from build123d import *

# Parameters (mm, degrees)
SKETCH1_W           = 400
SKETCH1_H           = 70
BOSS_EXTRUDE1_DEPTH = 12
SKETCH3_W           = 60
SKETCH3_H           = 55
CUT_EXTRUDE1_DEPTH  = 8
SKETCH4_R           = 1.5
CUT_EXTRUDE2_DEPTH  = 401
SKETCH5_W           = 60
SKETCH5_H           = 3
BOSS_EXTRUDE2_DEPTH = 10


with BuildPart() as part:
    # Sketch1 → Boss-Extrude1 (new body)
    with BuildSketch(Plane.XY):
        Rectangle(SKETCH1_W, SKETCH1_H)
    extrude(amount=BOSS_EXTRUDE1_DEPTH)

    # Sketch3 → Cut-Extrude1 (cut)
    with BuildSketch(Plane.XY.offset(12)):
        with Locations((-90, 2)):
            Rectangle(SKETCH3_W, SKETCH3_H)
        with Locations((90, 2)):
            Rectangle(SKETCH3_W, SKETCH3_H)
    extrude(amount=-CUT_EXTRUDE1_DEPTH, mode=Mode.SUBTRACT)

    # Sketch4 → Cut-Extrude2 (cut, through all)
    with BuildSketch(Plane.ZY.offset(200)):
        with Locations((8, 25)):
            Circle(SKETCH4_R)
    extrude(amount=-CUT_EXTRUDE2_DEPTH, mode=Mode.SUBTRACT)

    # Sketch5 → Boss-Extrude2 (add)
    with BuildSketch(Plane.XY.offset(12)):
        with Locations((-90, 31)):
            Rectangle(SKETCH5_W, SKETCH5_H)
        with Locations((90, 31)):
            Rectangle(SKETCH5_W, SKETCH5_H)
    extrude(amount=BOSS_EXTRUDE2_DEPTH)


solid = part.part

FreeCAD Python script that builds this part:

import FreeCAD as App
import Part
import Sketcher
from FreeCAD import Vector
Q = App.Units.Quantity

doc = App.newDocument("Part")
body = doc.addObject("PartDesign::Body", "Body")

# Sketch on XY plane
sketch1 = body.newObject("Sketcher::SketchObject", "Sketch")
sketch1.AttachmentSupport = (doc.getObject("XY_Plane"), [""])
sketch1.MapMode = "FlatFace"
sketch1.addGeometry([
    Part.LineSegment(Vector(-200, 35, 0), Vector(-200, -35, 0)),
    Part.LineSegment(Vector(-200, -35, 0), Vector(200, -35, 0)),
    Part.LineSegment(Vector(200, -35, 0), Vector(200, 35, 0)),
    Part.LineSegment(Vector(200, 35, 0), Vector(-200, 35, 0)),
], False)
sketch1.addConstraint([
    Sketcher.Constraint("Coincident", 0, 2, 1, 1),
    Sketcher.Constraint("Coincident", 1, 2, 2, 1),
    Sketcher.Constraint("Coincident", 2, 2, 3, 1),
    Sketcher.Constraint("Coincident", 3, 2, 0, 1),
    Sketcher.Constraint("Vertical", 0),
    Sketcher.Constraint("Horizontal", 1),
    Sketcher.Constraint("Vertical", 2),
    Sketcher.Constraint("Horizontal", 3),
    Sketcher.Constraint("Symmetric", 0, 2, 2, 2, -1, 1),
    Sketcher.Constraint("DistanceX", 1, 1, 1, 2, Q("400 mm")),
    Sketcher.Constraint("DistanceY", 0, 2, 0, 1, Q("70 mm")),
])
pad1 = body.newObject("PartDesign::Pad", "Pad")
pad1.Profile = sketch1
pad1.Length = 12

# Sketch on XY plane
sketch2 = body.newObject("Sketcher::SketchObject", "Sketch001")
sketch2.AttachmentSupport = (doc.getObject("XY_Plane"), [""])
sketch2.MapMode = "FlatFace"
sketch2.AttachmentOffset = App.Placement(Vector(0, 0, 12), App.Rotation())
sketch2.addGeometry([
    Part.LineSegment(Vector(-120, 30, 0), Vector(-120, -26, 0)),  # 0
    Part.LineSegment(Vector(-120, -26, 0), Vector(-60, -26, 0)),  # 1
    Part.LineSegment(Vector(-60, -26, 0), Vector(-60, 30, 0)),  # 2
    Part.LineSegment(Vector(-60, 30, 0), Vector(-120, 30, 0)),  # 3
    Part.LineSegment(Vector(60, 30, 0), Vector(60, -26, 0)),  # 4
    Part.LineSegment(Vector(60, -26, 0), Vector(120, -26, 0)),  # 5
    Part.LineSegment(Vector(120, -26, 0), Vector(120, 30, 0)),  # 6
    Part.LineSegment(Vector(120, 30, 0), Vector(60, 30, 0)),  # 7
], False)
sketch2.addConstraint([
    Sketcher.Constraint("Coincident", 0, 2, 1, 1),
    Sketcher.Constraint("Coincident", 1, 2, 2, 1),
    Sketcher.Constraint("Coincident", 2, 2, 3, 1),
    Sketcher.Constraint("Coincident", 3, 2, 0, 1),
    Sketcher.Constraint("Coincident", 4, 2, 5, 1),
    Sketcher.Constraint("Coincident", 5, 2, 6, 1),
    Sketcher.Constraint("Coincident", 6, 2, 7, 1),
    Sketcher.Constraint("Coincident", 7, 2, 4, 1),
    Sketcher.Constraint("Vertical", 0),
    Sketcher.Constraint("Horizontal", 1),
    Sketcher.Constraint("Vertical", 2),
    Sketcher.Constraint("Horizontal", 3),
    Sketcher.Constraint("Vertical", 4),
    Sketcher.Constraint("Horizontal", 5),
    Sketcher.Constraint("Vertical", 6),
    Sketcher.Constraint("Horizontal", 7),
    Sketcher.Constraint("Symmetric", 1, 2, 4, 2, -2),
    Sketcher.Constraint("Symmetric", 3, 2, 6, 2, -2),
    Sketcher.Constraint("DistanceX", 1, 1, 1, 2, Q("60 mm")),
    Sketcher.Constraint("DistanceY", 0, 2, 0, 1, Q("55 mm")),
    Sketcher.Constraint("DistanceX", 0, 2, -1, 1, Q("120 mm")),
    Sketcher.Constraint("DistanceY", 0, 2, -1, 1, Q("25.5 mm")),
])
pocket1 = body.newObject("PartDesign::Pocket", "Pocket")
pocket1.Profile = sketch2
pocket1.Length = 8

# Sketch on YZ plane
sketch3 = body.newObject("Sketcher::SketchObject", "Sketch002")
sketch3.AttachmentSupport = (doc.getObject("YZ_Plane"), [""])
sketch3.MapMode = "FlatFace"
sketch3.AttachmentOffset = App.Placement(Vector(0, 0, -200), App.Rotation())
sketch3.addGeometry(Part.Circle(Vector(25, 8, 0), Vector(0, 0, 1), 1.5), False)
sketch3.addConstraint([
    Sketcher.Constraint("Diameter", 0, Q("3 mm")),
    Sketcher.Constraint("DistanceX", -1, 1, 0, 3, Q("25 mm")),
    Sketcher.Constraint("DistanceY", -1, 1, 0, 3, Q("8 mm")),
])
pocket2 = body.newObject("PartDesign::Pocket", "Pocket001")
pocket2.Profile = sketch3
pocket2.Type = "ThroughAll"
pocket2.Reversed = True

# Sketch on XY plane
sketch4 = body.newObject("Sketcher::SketchObject", "Sketch003")
sketch4.AttachmentSupport = (doc.getObject("XY_Plane"), [""])
sketch4.MapMode = "FlatFace"
sketch4.AttachmentOffset = App.Placement(Vector(0, 0, 12), App.Rotation())
sketch4.addGeometry([
    Part.LineSegment(Vector(-120, 32.5, 0), Vector(-120, 29.5, 0)),  # 0
    Part.LineSegment(Vector(-120, 29.5, 0), Vector(-60, 29.5, 0)),  # 1
    Part.LineSegment(Vector(-60, 29.5, 0), Vector(-60, 32.5, 0)),  # 2
    Part.LineSegment(Vector(-60, 32.5, 0), Vector(-120, 32.5, 0)),  # 3
    Part.LineSegment(Vector(60, 32.5, 0), Vector(60, 29.5, 0)),  # 4
    Part.LineSegment(Vector(60, 29.5, 0), Vector(120, 29.5, 0)),  # 5
    Part.LineSegment(Vector(120, 29.5, 0), Vector(120, 32.5, 0)),  # 6
    Part.LineSegment(Vector(120, 32.5, 0), Vector(60, 32.5, 0)),  # 7
], False)
sketch4.addConstraint([
    Sketcher.Constraint("Coincident", 0, 2, 1, 1),
    Sketcher.Constraint("Coincident", 1, 2, 2, 1),
    Sketcher.Constraint("Coincident", 2, 2, 3, 1),
    Sketcher.Constraint("Coincident", 3, 2, 0, 1),
    Sketcher.Constraint("Coincident", 4, 2, 5, 1),
    Sketcher.Constraint("Coincident", 5, 2, 6, 1),
    Sketcher.Constraint("Coincident", 6, 2, 7, 1),
    Sketcher.Constraint("Coincident", 7, 2, 4, 1),
    Sketcher.Constraint("Vertical", 0),
    Sketcher.Constraint("Horizontal", 1),
    Sketcher.Constraint("Vertical", 2),
    Sketcher.Constraint("Horizontal", 3),
    Sketcher.Constraint("Vertical", 4),
    Sketcher.Constraint("Horizontal", 5),
    Sketcher.Constraint("Vertical", 6),
    Sketcher.Constraint("Horizontal", 7),
    Sketcher.Constraint("Symmetric", 1, 2, 4, 2, -2),
    Sketcher.Constraint("Symmetric", 3, 2, 6, 2, -2),
    Sketcher.Constraint("DistanceX", 1, 1, 1, 2, Q("60 mm")),
    Sketcher.Constraint("DistanceY", 0, 2, 0, 1, Q("3 mm")),
    Sketcher.Constraint("DistanceX", 0, 2, -1, 1, Q("120 mm")),
    Sketcher.Constraint("DistanceY", -1, 1, 0, 2, Q("29.5 mm")),
])
pad2 = body.newObject("PartDesign::Pad", "Pad001")
pad2.Profile = sketch4
pad2.Length = 10

doc.recompute()
